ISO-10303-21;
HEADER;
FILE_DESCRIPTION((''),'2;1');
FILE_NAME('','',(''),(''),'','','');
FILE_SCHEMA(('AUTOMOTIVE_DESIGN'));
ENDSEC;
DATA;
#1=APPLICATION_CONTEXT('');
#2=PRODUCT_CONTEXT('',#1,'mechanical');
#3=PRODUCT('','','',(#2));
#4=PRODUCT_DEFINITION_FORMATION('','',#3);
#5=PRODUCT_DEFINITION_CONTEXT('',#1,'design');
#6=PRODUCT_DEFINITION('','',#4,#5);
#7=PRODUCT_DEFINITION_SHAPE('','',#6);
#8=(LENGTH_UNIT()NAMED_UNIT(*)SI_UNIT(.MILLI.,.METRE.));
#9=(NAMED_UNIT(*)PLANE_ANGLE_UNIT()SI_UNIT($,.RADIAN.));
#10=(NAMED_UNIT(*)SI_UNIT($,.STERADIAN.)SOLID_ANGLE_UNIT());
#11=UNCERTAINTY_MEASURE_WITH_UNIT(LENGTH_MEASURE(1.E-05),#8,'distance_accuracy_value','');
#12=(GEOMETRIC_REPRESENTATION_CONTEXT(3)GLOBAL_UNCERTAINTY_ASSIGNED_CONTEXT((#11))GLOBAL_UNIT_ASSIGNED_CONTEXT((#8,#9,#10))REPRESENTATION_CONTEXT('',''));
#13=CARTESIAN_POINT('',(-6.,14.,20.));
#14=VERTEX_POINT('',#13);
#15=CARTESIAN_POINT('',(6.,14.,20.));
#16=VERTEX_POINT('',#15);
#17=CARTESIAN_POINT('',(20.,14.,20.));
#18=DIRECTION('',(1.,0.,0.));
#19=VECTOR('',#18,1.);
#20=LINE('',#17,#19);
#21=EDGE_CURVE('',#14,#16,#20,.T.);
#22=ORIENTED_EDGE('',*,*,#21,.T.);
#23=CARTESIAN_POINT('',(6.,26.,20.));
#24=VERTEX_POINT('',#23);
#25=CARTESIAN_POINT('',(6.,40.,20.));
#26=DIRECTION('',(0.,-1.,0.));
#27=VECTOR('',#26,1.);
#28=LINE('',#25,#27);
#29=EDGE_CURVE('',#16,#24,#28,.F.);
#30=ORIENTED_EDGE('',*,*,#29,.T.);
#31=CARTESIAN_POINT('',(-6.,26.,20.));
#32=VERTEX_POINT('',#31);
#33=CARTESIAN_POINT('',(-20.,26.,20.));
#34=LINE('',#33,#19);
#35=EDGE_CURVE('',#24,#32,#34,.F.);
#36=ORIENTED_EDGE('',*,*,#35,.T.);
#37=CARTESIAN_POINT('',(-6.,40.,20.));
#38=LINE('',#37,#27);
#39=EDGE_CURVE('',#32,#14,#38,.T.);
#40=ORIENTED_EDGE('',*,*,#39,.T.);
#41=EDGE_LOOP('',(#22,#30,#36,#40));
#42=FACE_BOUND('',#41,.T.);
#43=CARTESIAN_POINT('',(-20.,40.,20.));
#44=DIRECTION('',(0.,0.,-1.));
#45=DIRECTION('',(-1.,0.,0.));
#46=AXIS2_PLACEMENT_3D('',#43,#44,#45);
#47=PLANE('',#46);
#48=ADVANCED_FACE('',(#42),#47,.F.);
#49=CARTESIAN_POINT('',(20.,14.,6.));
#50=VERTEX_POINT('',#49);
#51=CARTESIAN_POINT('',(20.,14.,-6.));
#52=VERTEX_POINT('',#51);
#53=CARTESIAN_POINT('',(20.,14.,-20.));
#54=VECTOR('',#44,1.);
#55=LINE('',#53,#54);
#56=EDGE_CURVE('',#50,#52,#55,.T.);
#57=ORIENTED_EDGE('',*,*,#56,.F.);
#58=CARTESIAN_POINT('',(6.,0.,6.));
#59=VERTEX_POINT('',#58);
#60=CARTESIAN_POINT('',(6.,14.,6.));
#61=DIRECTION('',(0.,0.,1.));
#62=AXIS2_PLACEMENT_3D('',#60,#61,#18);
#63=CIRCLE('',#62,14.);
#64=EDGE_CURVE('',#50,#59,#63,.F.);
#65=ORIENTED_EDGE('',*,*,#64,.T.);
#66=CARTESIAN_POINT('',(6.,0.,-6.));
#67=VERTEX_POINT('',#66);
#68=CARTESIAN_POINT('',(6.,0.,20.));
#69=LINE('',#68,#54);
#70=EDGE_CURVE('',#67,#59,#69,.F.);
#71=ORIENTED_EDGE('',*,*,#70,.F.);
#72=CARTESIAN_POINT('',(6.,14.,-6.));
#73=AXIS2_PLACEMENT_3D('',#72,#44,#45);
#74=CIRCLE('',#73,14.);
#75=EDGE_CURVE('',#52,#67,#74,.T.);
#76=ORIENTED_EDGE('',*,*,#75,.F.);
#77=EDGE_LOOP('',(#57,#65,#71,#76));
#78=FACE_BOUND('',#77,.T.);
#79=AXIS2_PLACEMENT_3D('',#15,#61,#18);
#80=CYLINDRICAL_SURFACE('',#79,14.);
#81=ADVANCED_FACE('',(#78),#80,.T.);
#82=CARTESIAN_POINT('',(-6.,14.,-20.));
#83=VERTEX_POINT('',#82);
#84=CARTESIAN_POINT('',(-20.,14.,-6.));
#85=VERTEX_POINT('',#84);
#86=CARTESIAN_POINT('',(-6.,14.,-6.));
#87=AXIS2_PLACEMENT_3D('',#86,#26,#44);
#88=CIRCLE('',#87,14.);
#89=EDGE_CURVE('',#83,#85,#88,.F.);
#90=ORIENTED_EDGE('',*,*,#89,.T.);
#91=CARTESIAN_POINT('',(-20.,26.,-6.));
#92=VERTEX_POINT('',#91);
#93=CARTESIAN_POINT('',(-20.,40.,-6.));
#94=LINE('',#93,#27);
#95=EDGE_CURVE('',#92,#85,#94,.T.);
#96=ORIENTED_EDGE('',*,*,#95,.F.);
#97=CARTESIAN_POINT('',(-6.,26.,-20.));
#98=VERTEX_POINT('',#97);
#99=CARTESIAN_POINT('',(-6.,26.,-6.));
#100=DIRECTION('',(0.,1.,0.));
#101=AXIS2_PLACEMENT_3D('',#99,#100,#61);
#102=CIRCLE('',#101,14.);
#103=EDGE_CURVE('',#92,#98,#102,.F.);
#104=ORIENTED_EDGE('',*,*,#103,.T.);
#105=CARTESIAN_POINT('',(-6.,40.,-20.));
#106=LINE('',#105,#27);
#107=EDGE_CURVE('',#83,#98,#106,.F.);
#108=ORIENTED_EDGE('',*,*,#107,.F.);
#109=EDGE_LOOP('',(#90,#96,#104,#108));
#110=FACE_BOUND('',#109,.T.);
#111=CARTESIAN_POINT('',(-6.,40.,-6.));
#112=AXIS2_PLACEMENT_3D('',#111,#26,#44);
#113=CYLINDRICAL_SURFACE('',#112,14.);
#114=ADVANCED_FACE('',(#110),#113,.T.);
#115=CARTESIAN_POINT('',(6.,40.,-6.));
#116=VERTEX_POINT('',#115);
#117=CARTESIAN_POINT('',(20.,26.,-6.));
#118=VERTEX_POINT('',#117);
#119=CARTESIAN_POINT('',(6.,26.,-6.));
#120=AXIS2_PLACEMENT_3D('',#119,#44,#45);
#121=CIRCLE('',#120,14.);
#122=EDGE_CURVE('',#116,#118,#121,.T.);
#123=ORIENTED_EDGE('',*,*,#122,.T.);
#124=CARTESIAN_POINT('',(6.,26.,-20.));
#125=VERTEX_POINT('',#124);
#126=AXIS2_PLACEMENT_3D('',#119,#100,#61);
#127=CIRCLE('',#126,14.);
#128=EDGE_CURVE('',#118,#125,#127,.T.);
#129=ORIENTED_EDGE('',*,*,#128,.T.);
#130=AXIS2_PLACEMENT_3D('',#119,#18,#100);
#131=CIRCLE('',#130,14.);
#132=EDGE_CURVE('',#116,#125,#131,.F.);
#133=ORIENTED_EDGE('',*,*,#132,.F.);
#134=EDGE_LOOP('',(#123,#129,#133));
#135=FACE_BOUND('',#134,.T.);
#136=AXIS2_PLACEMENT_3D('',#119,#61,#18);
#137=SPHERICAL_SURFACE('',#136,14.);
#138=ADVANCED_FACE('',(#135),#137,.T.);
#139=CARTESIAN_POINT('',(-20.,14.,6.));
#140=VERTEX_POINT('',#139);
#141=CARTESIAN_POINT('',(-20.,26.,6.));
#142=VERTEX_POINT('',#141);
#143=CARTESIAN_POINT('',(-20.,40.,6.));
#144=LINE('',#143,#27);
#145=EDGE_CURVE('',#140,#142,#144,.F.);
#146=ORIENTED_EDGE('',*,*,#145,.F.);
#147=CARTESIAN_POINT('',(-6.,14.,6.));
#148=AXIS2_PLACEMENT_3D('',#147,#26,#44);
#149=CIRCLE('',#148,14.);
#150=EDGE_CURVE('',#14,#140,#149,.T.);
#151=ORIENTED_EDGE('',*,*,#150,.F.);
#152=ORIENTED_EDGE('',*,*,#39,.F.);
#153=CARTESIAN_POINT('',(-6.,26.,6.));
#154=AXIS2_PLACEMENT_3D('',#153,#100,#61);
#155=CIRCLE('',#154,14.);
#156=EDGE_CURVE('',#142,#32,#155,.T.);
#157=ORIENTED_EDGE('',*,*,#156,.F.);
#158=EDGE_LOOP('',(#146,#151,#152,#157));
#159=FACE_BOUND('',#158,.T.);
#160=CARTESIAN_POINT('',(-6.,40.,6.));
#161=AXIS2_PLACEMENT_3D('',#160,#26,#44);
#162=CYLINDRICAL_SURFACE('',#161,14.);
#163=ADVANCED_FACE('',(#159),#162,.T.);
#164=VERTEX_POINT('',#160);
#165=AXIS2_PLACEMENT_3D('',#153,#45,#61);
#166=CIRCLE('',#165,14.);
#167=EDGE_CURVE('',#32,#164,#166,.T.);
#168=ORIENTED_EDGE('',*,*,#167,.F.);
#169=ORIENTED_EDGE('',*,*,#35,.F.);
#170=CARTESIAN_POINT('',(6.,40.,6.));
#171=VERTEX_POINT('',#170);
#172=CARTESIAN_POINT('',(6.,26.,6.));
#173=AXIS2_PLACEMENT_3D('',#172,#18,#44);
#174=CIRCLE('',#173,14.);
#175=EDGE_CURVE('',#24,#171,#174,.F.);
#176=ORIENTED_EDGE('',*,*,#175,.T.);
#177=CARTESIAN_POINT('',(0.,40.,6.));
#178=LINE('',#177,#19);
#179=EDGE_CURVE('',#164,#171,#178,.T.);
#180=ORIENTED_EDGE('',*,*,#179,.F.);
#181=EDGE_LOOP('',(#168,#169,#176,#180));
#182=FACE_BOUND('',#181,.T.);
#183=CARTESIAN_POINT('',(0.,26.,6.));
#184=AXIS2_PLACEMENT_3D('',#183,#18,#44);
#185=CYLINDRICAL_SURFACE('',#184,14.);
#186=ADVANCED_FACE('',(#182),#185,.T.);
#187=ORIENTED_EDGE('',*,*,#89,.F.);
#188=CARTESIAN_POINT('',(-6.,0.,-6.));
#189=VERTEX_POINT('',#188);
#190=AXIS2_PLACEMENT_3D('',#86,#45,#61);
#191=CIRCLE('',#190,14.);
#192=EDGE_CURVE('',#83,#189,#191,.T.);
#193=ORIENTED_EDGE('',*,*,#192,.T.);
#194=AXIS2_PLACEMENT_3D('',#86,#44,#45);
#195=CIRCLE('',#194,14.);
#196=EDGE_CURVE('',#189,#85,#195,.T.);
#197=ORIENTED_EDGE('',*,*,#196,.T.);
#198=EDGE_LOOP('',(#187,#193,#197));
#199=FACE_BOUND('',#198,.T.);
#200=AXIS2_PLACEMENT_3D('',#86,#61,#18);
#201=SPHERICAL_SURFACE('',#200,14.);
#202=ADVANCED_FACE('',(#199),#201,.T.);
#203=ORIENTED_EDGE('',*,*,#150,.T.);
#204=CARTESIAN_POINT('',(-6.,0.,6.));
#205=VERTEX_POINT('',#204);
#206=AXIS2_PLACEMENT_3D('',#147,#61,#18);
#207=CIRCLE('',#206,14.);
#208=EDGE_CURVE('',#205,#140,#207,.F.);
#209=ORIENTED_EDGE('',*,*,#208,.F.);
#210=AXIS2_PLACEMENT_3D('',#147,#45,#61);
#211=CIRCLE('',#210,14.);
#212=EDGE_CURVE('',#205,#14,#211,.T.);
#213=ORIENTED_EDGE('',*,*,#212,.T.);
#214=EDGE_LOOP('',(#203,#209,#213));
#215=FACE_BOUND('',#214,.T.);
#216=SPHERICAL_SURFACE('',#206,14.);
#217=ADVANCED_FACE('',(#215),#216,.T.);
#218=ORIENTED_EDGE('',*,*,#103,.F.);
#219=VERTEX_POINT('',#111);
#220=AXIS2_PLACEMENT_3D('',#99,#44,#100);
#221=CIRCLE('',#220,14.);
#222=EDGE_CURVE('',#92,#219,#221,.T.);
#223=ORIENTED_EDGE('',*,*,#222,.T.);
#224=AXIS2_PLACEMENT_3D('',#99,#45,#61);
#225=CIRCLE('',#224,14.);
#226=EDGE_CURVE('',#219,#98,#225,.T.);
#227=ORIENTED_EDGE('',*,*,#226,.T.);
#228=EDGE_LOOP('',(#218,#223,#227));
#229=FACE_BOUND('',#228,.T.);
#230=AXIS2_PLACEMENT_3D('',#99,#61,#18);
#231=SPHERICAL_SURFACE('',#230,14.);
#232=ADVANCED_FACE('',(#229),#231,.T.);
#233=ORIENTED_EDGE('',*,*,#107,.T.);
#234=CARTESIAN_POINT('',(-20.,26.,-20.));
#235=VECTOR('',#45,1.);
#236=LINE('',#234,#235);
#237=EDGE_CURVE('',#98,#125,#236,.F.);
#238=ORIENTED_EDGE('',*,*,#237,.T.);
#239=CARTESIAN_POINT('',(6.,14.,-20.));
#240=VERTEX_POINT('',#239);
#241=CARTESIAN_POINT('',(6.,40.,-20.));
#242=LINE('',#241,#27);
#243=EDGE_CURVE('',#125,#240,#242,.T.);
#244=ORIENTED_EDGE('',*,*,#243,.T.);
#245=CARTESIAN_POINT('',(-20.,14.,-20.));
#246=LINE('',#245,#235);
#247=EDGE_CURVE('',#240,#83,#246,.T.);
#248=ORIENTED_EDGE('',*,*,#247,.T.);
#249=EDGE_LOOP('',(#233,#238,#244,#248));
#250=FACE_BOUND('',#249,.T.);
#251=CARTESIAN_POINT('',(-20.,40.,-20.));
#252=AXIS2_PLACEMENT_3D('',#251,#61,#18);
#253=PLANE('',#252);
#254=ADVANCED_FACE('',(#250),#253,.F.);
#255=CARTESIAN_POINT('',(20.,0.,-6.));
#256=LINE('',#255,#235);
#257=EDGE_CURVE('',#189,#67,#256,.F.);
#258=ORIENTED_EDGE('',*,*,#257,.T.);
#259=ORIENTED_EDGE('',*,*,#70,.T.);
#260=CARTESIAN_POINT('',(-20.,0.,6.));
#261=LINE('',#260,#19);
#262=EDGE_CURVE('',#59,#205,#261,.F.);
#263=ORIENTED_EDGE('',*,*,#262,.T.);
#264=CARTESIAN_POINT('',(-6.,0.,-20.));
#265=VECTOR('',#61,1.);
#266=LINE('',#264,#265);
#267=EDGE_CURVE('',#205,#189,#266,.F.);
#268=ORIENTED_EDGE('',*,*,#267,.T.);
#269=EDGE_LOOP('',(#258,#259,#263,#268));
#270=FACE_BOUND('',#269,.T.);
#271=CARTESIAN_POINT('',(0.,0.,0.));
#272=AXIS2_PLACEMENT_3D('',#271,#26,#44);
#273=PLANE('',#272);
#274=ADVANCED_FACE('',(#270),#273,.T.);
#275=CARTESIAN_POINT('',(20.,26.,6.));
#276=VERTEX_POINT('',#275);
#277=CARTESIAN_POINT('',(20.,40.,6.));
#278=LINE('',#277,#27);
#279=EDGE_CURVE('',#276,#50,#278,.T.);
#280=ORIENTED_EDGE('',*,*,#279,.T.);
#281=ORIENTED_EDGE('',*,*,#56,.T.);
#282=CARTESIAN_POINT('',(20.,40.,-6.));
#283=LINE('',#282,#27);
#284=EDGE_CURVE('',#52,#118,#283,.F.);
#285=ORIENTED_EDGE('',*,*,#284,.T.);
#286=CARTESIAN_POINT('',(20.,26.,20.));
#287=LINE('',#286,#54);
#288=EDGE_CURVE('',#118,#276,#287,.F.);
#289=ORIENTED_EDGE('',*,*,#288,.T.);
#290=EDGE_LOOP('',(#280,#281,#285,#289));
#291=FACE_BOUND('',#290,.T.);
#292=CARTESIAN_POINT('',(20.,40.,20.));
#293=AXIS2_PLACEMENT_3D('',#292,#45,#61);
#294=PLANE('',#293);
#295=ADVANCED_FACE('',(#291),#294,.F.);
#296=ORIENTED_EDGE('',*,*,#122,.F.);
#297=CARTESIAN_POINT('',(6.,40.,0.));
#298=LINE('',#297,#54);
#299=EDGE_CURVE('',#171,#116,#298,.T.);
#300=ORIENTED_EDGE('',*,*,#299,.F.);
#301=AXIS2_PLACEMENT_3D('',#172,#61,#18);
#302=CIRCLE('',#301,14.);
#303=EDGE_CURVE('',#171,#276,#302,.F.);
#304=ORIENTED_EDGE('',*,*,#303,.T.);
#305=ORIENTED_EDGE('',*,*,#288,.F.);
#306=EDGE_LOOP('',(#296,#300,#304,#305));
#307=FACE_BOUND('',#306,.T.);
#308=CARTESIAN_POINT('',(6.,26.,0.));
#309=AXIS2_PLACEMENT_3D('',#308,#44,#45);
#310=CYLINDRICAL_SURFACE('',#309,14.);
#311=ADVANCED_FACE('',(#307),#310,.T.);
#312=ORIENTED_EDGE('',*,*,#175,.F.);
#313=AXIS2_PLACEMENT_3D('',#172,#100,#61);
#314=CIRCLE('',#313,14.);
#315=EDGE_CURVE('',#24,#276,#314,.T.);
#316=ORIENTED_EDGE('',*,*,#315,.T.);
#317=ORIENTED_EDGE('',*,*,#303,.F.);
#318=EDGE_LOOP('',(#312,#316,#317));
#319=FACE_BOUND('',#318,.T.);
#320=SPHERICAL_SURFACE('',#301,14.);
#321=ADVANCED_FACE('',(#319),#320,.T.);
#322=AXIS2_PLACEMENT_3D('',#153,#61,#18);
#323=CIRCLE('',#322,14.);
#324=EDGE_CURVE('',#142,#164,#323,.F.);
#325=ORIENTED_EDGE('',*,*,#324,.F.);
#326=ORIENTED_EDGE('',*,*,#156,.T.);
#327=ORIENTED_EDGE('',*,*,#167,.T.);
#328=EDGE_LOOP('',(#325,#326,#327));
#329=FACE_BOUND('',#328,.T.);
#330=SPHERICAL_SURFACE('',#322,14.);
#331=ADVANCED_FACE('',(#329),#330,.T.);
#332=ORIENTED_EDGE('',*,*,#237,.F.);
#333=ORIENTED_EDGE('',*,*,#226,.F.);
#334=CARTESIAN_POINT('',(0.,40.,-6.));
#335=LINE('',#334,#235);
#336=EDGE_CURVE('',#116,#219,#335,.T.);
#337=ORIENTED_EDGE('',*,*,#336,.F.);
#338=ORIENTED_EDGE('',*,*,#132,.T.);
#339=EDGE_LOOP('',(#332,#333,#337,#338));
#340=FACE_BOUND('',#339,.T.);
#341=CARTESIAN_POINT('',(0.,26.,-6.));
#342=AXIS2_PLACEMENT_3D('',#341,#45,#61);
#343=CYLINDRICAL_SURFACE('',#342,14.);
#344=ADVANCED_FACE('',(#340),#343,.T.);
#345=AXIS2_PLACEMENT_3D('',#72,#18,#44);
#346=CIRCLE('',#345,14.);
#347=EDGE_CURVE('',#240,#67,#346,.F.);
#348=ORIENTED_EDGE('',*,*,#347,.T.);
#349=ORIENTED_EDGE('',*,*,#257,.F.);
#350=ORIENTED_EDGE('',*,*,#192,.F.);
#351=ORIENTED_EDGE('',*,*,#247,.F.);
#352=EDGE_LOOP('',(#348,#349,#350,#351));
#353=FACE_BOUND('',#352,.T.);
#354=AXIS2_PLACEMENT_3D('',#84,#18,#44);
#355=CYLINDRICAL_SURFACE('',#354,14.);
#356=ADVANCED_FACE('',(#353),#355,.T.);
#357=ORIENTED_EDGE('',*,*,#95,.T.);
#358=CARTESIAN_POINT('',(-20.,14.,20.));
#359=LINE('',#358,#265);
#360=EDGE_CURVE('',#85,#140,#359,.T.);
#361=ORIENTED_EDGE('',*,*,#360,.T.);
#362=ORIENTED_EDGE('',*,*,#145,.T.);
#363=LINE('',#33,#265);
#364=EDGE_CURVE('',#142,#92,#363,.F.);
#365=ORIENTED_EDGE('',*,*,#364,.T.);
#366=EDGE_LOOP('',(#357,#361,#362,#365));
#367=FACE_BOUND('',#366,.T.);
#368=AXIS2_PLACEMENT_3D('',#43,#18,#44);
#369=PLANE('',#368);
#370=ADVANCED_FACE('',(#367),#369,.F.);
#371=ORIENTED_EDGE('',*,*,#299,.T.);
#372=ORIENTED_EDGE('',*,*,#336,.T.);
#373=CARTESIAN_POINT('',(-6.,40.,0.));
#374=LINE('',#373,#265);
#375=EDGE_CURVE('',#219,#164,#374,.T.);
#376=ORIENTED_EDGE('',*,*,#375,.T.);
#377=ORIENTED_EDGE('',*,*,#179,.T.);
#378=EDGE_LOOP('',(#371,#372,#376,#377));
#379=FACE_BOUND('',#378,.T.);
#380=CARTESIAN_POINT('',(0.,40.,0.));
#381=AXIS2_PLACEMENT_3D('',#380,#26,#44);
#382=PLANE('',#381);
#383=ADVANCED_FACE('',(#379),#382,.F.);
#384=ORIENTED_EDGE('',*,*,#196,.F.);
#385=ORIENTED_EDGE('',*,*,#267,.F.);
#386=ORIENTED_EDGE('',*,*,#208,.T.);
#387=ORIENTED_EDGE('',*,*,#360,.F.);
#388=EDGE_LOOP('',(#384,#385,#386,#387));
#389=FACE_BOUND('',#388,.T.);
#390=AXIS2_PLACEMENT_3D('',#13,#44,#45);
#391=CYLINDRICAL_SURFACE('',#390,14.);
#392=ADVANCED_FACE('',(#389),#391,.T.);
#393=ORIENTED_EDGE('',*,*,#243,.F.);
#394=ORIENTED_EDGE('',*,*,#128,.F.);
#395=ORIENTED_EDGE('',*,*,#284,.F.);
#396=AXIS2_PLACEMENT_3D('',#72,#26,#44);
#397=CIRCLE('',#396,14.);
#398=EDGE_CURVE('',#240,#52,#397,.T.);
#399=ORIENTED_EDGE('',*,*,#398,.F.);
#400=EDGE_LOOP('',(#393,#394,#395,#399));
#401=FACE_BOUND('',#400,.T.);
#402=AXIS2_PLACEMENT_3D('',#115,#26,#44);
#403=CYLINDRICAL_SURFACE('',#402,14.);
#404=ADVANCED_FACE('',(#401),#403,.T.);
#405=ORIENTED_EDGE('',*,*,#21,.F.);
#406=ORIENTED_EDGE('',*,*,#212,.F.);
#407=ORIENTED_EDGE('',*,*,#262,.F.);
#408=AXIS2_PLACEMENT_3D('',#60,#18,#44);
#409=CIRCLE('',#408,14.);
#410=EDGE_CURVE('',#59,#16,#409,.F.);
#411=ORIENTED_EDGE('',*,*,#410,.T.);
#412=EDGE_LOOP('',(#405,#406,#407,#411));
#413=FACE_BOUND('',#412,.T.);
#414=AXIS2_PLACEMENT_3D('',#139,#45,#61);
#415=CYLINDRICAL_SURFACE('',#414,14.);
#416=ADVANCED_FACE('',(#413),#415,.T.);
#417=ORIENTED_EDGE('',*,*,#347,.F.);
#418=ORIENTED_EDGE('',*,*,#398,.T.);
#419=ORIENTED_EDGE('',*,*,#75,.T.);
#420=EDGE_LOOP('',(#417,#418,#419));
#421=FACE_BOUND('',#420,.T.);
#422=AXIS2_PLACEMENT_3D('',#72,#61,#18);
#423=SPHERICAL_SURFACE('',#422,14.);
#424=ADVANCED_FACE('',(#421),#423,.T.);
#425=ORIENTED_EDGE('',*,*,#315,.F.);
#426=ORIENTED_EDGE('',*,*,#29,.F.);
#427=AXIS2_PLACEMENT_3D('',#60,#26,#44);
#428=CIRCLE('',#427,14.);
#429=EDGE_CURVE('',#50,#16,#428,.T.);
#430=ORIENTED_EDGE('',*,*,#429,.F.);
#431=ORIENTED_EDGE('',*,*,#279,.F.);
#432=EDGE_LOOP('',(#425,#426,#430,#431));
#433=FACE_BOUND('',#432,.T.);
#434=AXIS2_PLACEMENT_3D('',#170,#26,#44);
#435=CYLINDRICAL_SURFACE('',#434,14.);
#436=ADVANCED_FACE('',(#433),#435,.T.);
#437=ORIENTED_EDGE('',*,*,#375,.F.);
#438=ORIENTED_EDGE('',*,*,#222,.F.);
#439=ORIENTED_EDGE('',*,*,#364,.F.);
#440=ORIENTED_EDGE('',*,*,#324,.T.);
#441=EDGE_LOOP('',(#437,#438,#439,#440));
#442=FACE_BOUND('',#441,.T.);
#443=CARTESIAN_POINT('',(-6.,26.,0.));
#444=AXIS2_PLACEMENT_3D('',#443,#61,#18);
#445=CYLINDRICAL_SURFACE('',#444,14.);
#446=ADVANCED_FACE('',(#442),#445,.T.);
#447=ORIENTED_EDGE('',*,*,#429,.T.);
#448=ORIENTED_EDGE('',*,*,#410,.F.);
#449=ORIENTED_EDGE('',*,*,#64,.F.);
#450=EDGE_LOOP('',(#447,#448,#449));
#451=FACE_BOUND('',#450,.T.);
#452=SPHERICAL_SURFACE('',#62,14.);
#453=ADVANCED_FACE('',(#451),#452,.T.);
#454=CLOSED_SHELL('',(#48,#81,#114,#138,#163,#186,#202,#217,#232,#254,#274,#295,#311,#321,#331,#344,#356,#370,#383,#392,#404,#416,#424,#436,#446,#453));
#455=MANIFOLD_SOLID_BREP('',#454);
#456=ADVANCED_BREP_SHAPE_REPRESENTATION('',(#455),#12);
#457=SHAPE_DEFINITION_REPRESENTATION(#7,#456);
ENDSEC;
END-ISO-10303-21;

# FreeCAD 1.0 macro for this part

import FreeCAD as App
import Part
import Sketcher
Q = App.Units.Quantity


def add_polygon(sketch, points):
    """Adds a closed chain of lines whose ends are joined by coincident constraints."""
    first, n = sketch.GeometryCount, len(points)
    for a, b in zip(points, points[1:] + points[:1]):
        sketch.addGeometry(Part.LineSegment(App.Vector(*a, 0), App.Vector(*b, 0)), False)
    for i in range(n):
        sketch.addConstraint(Sketcher.Constraint("Coincident", first + i, 2, first + (i + 1) % n, 1))

doc = App.newDocument("Part")
body = doc.addObject("PartDesign::Body", "Body")

# Sketch on XZ plane
sketch1 = body.newObject("Sketcher::SketchObject", "Sketch")
sketch1.AttachmentSupport = (doc.getObject("XZ_Plane"), [""])
sketch1.MapMode = "FlatFace"
add_polygon(sketch1, [(-20, -20), (-20, 20), (20, 20), (20, -20)])  # lines 0-3
sketch1.addConstraint([
    Sketcher.Constraint("Vertical", 0),
    Sketcher.Constraint("Horizontal", 1),
    Sketcher.Constraint("Vertical", 2),
    Sketcher.Constraint("Horizontal", 3),
    Sketcher.Constraint("Symmetric", 0, 2, 2, 2, -1, 1),
    Sketcher.Constraint("Equal", 3, 0),
    Sketcher.Constraint("DistanceX", 1, 1, 1, 2, Q("40 mm")),
])
pad1 = body.newObject("PartDesign::Pad", "Pad")
pad1.Profile = sketch1
pad1.Length = 40
pad1.Reversed = True
doc.recompute()

fillet = body.newObject("PartDesign::Fillet", "Fillet")
fillet.Base = (pad1, ["Edge1"])
fillet.UseAllEdges = True
fillet.Radius = 14

doc.recompute()
